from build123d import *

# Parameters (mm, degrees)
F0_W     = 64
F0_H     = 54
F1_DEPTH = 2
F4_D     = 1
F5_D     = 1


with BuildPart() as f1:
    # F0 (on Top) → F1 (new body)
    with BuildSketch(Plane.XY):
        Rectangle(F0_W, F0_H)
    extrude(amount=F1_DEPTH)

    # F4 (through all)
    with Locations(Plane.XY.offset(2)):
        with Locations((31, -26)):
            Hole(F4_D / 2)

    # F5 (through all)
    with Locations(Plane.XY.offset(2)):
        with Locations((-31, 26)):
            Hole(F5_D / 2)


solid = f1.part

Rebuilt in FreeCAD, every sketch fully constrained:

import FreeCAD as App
import Part
import Sketcher

doc = App.newDocument("Part")
body = doc.addObject("PartDesign::Body", "Body")

sketch1 = body.newObject("Sketcher::SketchObject", "Sketch")
sketch1.AttachmentSupport = (doc.getObject("XY_Plane"), [""])
sketch1.MapMode = "FlatFace"
sketch1.addGeometry(Part.LineSegment(App.Vector(-32, 27, 0), App.Vector(-32, -27, 0)), False)
sketch1.addGeometry(Part.LineSegment(App.Vector(-32, -27, 0), App.Vector(32, -27, 0)), False)
sketch1.addGeometry(Part.LineSegment(App.Vector(32, -27, 0), App.Vector(32, 27, 0)), False)
sketch1.addGeometry(Part.LineSegment(App.Vector(32, 27, 0), App.Vector(-32, 27, 0)), False)
sketch1.addConstraint(Sketcher.Constraint("Coincident", 0, 2, 1, 1))
sketch1.addConstraint(Sketcher.Constraint("Coincident", 1, 2, 2, 1))
sketch1.addConstraint(Sketcher.Constraint("Coincident", 2, 2, 3, 1))
sketch1.addConstraint(Sketcher.Constraint("Coincident", 3, 2, 0, 1))
sketch1.addConstraint(Sketcher.Constraint("Vertical", 0))
sketch1.addConstraint(Sketcher.Constraint("Horizontal", 1))
sketch1.addConstraint(Sketcher.Constraint("Vertical", 2))
sketch1.addConstraint(Sketcher.Constraint("Horizontal", 3))
sketch1.addConstraint(Sketcher.Constraint("Symmetric", 0, 2, 2, 2, -1, 1))
sketch1.addConstraint(Sketcher.Constraint("DistanceX", 1, 1, 1, 2, 64.0))
sketch1.addConstraint(Sketcher.Constraint("DistanceY", 0, 2, 0, 1, 54.0))
pad1 = body.newObject("PartDesign::Pad", "Pad")
pad1.Profile = sketch1
pad1.Length = 2

sketch2 = body.newObject("Sketcher::SketchObject", "Sketch001")
sketch2.AttachmentSupport = (doc.getObject("XY_Plane"), [""])
sketch2.MapMode = "FlatFace"
sketch2.AttachmentOffset = App.Placement(App.Vector(0, 0, 2), App.Rotation())
sketch2.addGeometry(Part.Circle(App.Vector(31, -26, 0), App.Vector(0, 0, 1), 0.5), False)
sketch2.addConstraint(Sketcher.Constraint("Diameter", 0, 1.0))
sketch2.addConstraint(Sketcher.Constraint("DistanceX", -1, 1, 0, 3, 31.0))
sketch2.addConstraint(Sketcher.Constraint("DistanceY", 0, 3, -1, 1, 26.0))
doc.recompute()
hole = body.newObject("PartDesign::Hole", "Hole")
hole.Profile = sketch2
hole.ThreadType = "None"
hole.Diameter = 1
hole.DepthType = "ThroughAll"

sketch3 = body.newObject("Sketcher::SketchObject", "Sketch002")
sketch3.AttachmentSupport = (doc.getObject("XY_Plane"), [""])
sketch3.MapMode = "FlatFace"
sketch3.AttachmentOffset = App.Placement(App.Vector(0, 0, 2), App.Rotation())
sketch3.addGeometry(Part.Circle(App.Vector(-31, 26, 0), App.Vector(0, 0, 1), 0.5), False)
sketch3.addConstraint(Sketcher.Constraint("Diameter", 0, 1.0))
sketch3.addConstraint(Sketcher.Constraint("DistanceX", 0, 3, -1, 1, 31.0))
sketch3.addConstraint(Sketcher.Constraint("DistanceY", -1, 1, 0, 3, 26.0))
doc.recompute()
hole2 = body.newObject("PartDesign::Hole", "Hole001")
hole2.Profile = sketch3
hole2.ThreadType = "None"
hole2.Diameter = 1
hole2.DepthType = "ThroughAll"

doc.recompute()
